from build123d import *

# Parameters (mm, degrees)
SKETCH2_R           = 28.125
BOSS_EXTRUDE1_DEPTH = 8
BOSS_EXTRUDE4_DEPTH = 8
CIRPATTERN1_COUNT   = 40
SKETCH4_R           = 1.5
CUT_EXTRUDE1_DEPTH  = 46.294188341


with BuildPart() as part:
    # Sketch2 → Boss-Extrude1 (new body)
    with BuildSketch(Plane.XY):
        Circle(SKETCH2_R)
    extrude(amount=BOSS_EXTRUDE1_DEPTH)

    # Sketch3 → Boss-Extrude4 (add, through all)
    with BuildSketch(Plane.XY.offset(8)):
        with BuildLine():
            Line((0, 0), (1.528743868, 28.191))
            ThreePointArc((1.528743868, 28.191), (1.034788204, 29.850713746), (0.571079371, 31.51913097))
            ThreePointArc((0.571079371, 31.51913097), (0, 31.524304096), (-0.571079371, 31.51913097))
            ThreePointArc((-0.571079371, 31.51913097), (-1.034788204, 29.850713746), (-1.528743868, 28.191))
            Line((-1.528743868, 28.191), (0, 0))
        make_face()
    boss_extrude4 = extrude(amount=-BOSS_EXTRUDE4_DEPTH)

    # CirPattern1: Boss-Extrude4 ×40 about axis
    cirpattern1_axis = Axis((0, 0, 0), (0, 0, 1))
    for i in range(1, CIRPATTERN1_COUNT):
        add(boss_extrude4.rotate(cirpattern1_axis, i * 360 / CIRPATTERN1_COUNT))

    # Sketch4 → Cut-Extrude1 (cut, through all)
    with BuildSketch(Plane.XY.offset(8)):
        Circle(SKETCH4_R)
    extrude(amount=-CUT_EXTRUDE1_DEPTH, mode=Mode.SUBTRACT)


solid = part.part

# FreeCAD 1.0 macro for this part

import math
import FreeCAD as App
import Part
import Sketcher

V = App.Vector
Q = App.Units.Quantity

doc = App.newDocument("Part")
body = doc.addObject("PartDesign::Body", "Body")

# Sketch on XY plane
sketch1 = doc.addObject("Sketcher::SketchObject", "Sketch")
body.addObject(sketch1)
sketch1.AttachmentSupport = (doc.XY_Plane, [""])
sketch1.MapMode = "FlatFace"
sketch1.addGeometry(Part.Circle(V(0, 0, 0), V(0, 0, 1), 28), False)
sketch1.addConstraint(Sketcher.Constraint("Coincident", 0, 3, -1, 1))
sketch1.addConstraint(Sketcher.Constraint("Diameter", 0, Q("56.25 mm")))
pad1 = doc.addObject("PartDesign::Pad", "Pad")
body.addObject(pad1)
pad1.Profile = sketch1
pad1.Length = 8

# Sketch on XY plane
sketch2 = doc.addObject("Sketcher::SketchObject", "Sketch001")
body.addObject(sketch2)
sketch2.AttachmentSupport = (doc.XY_Plane, [""])
sketch2.MapMode = "FlatFace"
sketch2.AttachmentOffset = App.Placement(V(0, 0, 8), App.Rotation())
sketch2.addGeometry(Part.LineSegment(V(0, 0, 0), V(1.5, 28.2, 0)), False)
sketch2.addGeometry(Part.ArcOfCircle(Part.Circle(V(92.6, 56.2, 0), V(0, 0, 1), 95.3), math.radians(-164.99), math.radians(-162.91)), False)
sketch2.addGeometry(Part.ArcOfCircle(Part.Circle(V(0, 0, 0), V(0, 0, 1), 31.5), math.radians(88.96), math.radians(91.04)), False)
sketch2.addGeometry(Part.ArcOfCircle(Part.Circle(V(-92.6, 56.2, 0), V(0, 0, 1), 95.3), math.radians(-17.09), math.radians(-15.01)), False)
sketch2.addGeometry(Part.LineSegment(V(-1.5, 28.2, 0), V(0, 0, 0)), False)
sketch2.addConstraint(Sketcher.Constraint("Coincident", 0, 2, 1, 2))
sketch2.addConstraint(Sketcher.Constraint("Coincident", 1, 1, 2, 1))
sketch2.addConstraint(Sketcher.Constraint("Coincident", 2, 2, 3, 2))
sketch2.addConstraint(Sketcher.Constraint("Coincident", 3, 1, 4, 1))
sketch2.addConstraint(Sketcher.Constraint("Coincident", 4, 2, 0, 1))
sketch2.addConstraint(Sketcher.Constraint("Coincident", 2, 3, -1, 1))
sketch2.addConstraint(Sketcher.Constraint("Coincident", 4, 2, -1, 1))
sketch2.addConstraint(Sketcher.Constraint("Equal", 1, 3))
sketch2.addConstraint(Sketcher.Constraint("Symmetric", 1, 3, 3, 3, -2))
sketch2.addConstraint(Sketcher.Constraint("Horizontal", 0, 2, 3, 1))
sketch2.addConstraint(Sketcher.Constraint("DistanceY", -1, 1, 0, 2, Q("28.191 mm")))
sketch2.addConstraint(Sketcher.Constraint("Radius", 1, Q("95.273205 mm")))
sketch2.addConstraint(Sketcher.Constraint("Radius", 2, Q("31.524306 mm")))
sketch2.addConstraint(Sketcher.Constraint("Distance", 0, Q("28.23242 mm")))
sketch2.addConstraint(Sketcher.Constraint("DistanceY", 2, 3, 1, 3, Q("56.196418 mm")))
pad2 = doc.addObject("PartDesign::Pad", "Pad001")
body.addObject(pad2)
pad2.Profile = sketch2
pad2.Type = "UpToLast"
pad2.Reversed = True
doc.recompute()

polarpattern = doc.addObject("PartDesign::PolarPattern", "PolarPattern")
body.addObject(polarpattern)
polarpattern.Originals = [pad2]
polarpattern.Axis = (doc.Z_Axis, [""])
polarpattern.Angle = 360
polarpattern.Occurrences = 40
body.Tip = polarpattern

# Sketch on XY plane
sketch3 = doc.addObject("Sketcher::SketchObject", "Sketch002")
body.addObject(sketch3)
sketch3.AttachmentSupport = (doc.XY_Plane, [""])
sketch3.MapMode = "FlatFace"
sketch3.AttachmentOffset = App.Placement(V(0, 0, 8), App.Rotation())
sketch3.addGeometry(Part.Circle(V(0, 0, 0), V(0, 0, 1), 1.5), False)
sketch3.addConstraint(Sketcher.Constraint("Coincident", 0, 3, -1, 1))
sketch3.addConstraint(Sketcher.Constraint("Diameter", 0, Q("3 mm")))
pocket1 = doc.addObject("PartDesign::Pocket", "Pocket")
body.addObject(pocket1)
pocket1.Profile = sketch3
pocket1.Type = "ThroughAll"

doc.recompute()
